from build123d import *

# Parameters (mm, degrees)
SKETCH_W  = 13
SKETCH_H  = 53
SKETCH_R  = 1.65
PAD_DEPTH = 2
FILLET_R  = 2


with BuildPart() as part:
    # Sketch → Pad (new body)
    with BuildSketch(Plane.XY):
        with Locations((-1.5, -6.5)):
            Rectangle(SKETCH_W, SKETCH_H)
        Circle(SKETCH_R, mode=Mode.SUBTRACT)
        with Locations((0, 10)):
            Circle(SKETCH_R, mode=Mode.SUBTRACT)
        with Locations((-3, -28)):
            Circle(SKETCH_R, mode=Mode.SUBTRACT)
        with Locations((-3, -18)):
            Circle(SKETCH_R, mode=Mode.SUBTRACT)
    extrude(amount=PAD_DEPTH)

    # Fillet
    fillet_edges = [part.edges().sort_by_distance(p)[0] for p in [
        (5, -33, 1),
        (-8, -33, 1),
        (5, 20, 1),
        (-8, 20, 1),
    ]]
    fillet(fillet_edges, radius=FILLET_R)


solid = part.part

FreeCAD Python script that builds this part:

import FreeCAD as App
import Part
import Sketcher

V = App.Vector
Q = App.Units.Quantity


def edges_at(feature, points):
    """Names of the edges that pass closest to the given points."""
    edges = feature.Shape.Edges
    near = lambda p: min(range(len(edges)), key=lambda i: edges[i].distToShape(Part.Vertex(*p))[0])
    return sorted({f"Edge{near(p) + 1}" for p in points})


def add_polygon(sketch, points):
    """Adds a closed chain of lines whose ends are joined by coincident constraints."""
    first, n = sketch.GeometryCount, len(points)
    for a, b in zip(points, points[1:] + points[:1]):
        sketch.addGeometry(Part.LineSegment(App.Vector(*a, 0), App.Vector(*b, 0)), False)
    for i in range(n):
        sketch.addConstraint(Sketcher.Constraint("Coincident", first + i, 2, first + (i + 1) % n, 1))

doc = App.newDocument("Part")
params = doc.addObject("Spreadsheet::Sheet", "Params")
for row, (alias, value) in enumerate([
    ("sketch1_diameter", "3.3 mm"),
    ("sketch1_width", "13 mm"),
    ("sketch1_height", "53 mm"),
    ("pad1_length", "2 mm"),
    ("fillet_radius", "2 mm"),
], start=1):
    params.set(f"A{row}", alias)
    params.set(f"B{row}", "=" + value)
    params.setAlias(f"B{row}", alias)

body = doc.addObject("PartDesign::Body", "Body")

# Sketch on XY plane
sketch1 = body.newObject("Sketcher::SketchObject", "Sketch")
sketch1.AttachmentSupport = (doc.getObject("XY_Plane"), [""])
sketch1.MapMode = "FlatFace"
add_polygon(sketch1, [(-8, 20), (-8, -33), (5, -33), (5, 20)])  # lines 0-3
sketch1.addGeometry(Part.Circle(V(-3, -28, 0), V(0, 0, 1), 1.6), False)  # 4
sketch1.addGeometry(Part.Circle(V(-3, -18, 0), V(0, 0, 1), 1.6), False)  # 5
sketch1.addGeometry(Part.Circle(V(0, 0, 0), V(0, 0, 1), 1.6), False)  # 6
sketch1.addGeometry(Part.Circle(V(0, 10, 0), V(0, 0, 1), 1.6), False)  # 7
sketch1.addConstraint([
    Sketcher.Constraint("Vertical", 0),
    Sketcher.Constraint("Horizontal", 1),
    Sketcher.Constraint("Vertical", 2),
    Sketcher.Constraint("Horizontal", 3),
    Sketcher.Constraint("Coincident", 6, 3, -1, 1),
    Sketcher.Constraint("Equal", 4, 5),
    Sketcher.Constraint("Equal", 5, 6),
    Sketcher.Constraint("Equal", 6, 7),
    Sketcher.Constraint("PointOnObject", 7, 3, -2),
    Sketcher.Constraint("Vertical", 4, 3, 5, 3),
    Sketcher.Constraint("Diameter", 4, Q("3.3 mm")),
    Sketcher.Constraint("DistanceX", 1, 1, 1, 2, Q("13 mm")),
    Sketcher.Constraint("DistanceY", 0, 2, 0, 1, Q("53 mm")),
    Sketcher.Constraint("DistanceX", 4, 3, -1, 1, Q("3 mm")),
    Sketcher.Constraint("DistanceY", 4, 3, -1, 1, Q("28 mm")),
    Sketcher.Constraint("DistanceY", 5, 3, -1, 1, Q("18 mm")),
    Sketcher.Constraint("DistanceY", -1, 1, 7, 3, Q("10 mm")),
    Sketcher.Constraint("DistanceX", 0, 2, -1, 1, Q("8 mm")),
    Sketcher.Constraint("DistanceY", 0, 2, -1, 1, Q("33 mm")),
])
sketch1.setExpression("Constraints[14]", "Params.sketch1_diameter")
sketch1.setExpression("Constraints[15]", "Params.sketch1_width")
sketch1.setExpression("Constraints[16]", "Params.sketch1_height")
pad1 = body.newObject("PartDesign::Pad", "Pad")
pad1.Profile = sketch1
pad1.setExpression("Length", "Params.pad1_length")
doc.recompute()

fillet = body.newObject("PartDesign::Fillet", "Fillet")
fillet.Base = (pad1, edges_at(pad1, [
    (5, -33, 1),
    (-8, -33, 1),
    (5, 20, 1),
    (-8, 20, 1),
]))
fillet.setExpression("Radius", "Params.fillet_radius")

doc.recompute()
